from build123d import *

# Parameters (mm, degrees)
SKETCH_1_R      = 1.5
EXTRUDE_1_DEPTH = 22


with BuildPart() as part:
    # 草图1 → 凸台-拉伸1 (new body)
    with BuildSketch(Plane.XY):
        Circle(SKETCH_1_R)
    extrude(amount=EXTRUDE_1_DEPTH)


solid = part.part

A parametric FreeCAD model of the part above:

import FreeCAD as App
import Part
import Sketcher
Q = App.Units.Quantity

doc = App.newDocument("Part")
body = doc.addObject("PartDesign::Body", "Body")

# Sketch on XY plane
sketch1 = doc.addObject("Sketcher::SketchObject", "Sketch")
body.addObject(sketch1)
sketch1.AttachmentSupport = (doc.XY_Plane, [""])
sketch1.MapMode = "FlatFace"
sketch1.addGeometry(Part.Circle(App.Vector(0, 0, 0), App.Vector(0, 0, 1), 1.5), False)
sketch1.addConstraint(Sketcher.Constraint("Coincident", 0, 3, -1, 1))
sketch1.addConstraint(Sketcher.Constraint("Diameter", 0, Q("3 mm")))
pad1 = doc.addObject("PartDesign::Pad", "Pad")
body.addObject(pad1)
pad1.Profile = sketch1
pad1.Length = 22

doc.recompute()
